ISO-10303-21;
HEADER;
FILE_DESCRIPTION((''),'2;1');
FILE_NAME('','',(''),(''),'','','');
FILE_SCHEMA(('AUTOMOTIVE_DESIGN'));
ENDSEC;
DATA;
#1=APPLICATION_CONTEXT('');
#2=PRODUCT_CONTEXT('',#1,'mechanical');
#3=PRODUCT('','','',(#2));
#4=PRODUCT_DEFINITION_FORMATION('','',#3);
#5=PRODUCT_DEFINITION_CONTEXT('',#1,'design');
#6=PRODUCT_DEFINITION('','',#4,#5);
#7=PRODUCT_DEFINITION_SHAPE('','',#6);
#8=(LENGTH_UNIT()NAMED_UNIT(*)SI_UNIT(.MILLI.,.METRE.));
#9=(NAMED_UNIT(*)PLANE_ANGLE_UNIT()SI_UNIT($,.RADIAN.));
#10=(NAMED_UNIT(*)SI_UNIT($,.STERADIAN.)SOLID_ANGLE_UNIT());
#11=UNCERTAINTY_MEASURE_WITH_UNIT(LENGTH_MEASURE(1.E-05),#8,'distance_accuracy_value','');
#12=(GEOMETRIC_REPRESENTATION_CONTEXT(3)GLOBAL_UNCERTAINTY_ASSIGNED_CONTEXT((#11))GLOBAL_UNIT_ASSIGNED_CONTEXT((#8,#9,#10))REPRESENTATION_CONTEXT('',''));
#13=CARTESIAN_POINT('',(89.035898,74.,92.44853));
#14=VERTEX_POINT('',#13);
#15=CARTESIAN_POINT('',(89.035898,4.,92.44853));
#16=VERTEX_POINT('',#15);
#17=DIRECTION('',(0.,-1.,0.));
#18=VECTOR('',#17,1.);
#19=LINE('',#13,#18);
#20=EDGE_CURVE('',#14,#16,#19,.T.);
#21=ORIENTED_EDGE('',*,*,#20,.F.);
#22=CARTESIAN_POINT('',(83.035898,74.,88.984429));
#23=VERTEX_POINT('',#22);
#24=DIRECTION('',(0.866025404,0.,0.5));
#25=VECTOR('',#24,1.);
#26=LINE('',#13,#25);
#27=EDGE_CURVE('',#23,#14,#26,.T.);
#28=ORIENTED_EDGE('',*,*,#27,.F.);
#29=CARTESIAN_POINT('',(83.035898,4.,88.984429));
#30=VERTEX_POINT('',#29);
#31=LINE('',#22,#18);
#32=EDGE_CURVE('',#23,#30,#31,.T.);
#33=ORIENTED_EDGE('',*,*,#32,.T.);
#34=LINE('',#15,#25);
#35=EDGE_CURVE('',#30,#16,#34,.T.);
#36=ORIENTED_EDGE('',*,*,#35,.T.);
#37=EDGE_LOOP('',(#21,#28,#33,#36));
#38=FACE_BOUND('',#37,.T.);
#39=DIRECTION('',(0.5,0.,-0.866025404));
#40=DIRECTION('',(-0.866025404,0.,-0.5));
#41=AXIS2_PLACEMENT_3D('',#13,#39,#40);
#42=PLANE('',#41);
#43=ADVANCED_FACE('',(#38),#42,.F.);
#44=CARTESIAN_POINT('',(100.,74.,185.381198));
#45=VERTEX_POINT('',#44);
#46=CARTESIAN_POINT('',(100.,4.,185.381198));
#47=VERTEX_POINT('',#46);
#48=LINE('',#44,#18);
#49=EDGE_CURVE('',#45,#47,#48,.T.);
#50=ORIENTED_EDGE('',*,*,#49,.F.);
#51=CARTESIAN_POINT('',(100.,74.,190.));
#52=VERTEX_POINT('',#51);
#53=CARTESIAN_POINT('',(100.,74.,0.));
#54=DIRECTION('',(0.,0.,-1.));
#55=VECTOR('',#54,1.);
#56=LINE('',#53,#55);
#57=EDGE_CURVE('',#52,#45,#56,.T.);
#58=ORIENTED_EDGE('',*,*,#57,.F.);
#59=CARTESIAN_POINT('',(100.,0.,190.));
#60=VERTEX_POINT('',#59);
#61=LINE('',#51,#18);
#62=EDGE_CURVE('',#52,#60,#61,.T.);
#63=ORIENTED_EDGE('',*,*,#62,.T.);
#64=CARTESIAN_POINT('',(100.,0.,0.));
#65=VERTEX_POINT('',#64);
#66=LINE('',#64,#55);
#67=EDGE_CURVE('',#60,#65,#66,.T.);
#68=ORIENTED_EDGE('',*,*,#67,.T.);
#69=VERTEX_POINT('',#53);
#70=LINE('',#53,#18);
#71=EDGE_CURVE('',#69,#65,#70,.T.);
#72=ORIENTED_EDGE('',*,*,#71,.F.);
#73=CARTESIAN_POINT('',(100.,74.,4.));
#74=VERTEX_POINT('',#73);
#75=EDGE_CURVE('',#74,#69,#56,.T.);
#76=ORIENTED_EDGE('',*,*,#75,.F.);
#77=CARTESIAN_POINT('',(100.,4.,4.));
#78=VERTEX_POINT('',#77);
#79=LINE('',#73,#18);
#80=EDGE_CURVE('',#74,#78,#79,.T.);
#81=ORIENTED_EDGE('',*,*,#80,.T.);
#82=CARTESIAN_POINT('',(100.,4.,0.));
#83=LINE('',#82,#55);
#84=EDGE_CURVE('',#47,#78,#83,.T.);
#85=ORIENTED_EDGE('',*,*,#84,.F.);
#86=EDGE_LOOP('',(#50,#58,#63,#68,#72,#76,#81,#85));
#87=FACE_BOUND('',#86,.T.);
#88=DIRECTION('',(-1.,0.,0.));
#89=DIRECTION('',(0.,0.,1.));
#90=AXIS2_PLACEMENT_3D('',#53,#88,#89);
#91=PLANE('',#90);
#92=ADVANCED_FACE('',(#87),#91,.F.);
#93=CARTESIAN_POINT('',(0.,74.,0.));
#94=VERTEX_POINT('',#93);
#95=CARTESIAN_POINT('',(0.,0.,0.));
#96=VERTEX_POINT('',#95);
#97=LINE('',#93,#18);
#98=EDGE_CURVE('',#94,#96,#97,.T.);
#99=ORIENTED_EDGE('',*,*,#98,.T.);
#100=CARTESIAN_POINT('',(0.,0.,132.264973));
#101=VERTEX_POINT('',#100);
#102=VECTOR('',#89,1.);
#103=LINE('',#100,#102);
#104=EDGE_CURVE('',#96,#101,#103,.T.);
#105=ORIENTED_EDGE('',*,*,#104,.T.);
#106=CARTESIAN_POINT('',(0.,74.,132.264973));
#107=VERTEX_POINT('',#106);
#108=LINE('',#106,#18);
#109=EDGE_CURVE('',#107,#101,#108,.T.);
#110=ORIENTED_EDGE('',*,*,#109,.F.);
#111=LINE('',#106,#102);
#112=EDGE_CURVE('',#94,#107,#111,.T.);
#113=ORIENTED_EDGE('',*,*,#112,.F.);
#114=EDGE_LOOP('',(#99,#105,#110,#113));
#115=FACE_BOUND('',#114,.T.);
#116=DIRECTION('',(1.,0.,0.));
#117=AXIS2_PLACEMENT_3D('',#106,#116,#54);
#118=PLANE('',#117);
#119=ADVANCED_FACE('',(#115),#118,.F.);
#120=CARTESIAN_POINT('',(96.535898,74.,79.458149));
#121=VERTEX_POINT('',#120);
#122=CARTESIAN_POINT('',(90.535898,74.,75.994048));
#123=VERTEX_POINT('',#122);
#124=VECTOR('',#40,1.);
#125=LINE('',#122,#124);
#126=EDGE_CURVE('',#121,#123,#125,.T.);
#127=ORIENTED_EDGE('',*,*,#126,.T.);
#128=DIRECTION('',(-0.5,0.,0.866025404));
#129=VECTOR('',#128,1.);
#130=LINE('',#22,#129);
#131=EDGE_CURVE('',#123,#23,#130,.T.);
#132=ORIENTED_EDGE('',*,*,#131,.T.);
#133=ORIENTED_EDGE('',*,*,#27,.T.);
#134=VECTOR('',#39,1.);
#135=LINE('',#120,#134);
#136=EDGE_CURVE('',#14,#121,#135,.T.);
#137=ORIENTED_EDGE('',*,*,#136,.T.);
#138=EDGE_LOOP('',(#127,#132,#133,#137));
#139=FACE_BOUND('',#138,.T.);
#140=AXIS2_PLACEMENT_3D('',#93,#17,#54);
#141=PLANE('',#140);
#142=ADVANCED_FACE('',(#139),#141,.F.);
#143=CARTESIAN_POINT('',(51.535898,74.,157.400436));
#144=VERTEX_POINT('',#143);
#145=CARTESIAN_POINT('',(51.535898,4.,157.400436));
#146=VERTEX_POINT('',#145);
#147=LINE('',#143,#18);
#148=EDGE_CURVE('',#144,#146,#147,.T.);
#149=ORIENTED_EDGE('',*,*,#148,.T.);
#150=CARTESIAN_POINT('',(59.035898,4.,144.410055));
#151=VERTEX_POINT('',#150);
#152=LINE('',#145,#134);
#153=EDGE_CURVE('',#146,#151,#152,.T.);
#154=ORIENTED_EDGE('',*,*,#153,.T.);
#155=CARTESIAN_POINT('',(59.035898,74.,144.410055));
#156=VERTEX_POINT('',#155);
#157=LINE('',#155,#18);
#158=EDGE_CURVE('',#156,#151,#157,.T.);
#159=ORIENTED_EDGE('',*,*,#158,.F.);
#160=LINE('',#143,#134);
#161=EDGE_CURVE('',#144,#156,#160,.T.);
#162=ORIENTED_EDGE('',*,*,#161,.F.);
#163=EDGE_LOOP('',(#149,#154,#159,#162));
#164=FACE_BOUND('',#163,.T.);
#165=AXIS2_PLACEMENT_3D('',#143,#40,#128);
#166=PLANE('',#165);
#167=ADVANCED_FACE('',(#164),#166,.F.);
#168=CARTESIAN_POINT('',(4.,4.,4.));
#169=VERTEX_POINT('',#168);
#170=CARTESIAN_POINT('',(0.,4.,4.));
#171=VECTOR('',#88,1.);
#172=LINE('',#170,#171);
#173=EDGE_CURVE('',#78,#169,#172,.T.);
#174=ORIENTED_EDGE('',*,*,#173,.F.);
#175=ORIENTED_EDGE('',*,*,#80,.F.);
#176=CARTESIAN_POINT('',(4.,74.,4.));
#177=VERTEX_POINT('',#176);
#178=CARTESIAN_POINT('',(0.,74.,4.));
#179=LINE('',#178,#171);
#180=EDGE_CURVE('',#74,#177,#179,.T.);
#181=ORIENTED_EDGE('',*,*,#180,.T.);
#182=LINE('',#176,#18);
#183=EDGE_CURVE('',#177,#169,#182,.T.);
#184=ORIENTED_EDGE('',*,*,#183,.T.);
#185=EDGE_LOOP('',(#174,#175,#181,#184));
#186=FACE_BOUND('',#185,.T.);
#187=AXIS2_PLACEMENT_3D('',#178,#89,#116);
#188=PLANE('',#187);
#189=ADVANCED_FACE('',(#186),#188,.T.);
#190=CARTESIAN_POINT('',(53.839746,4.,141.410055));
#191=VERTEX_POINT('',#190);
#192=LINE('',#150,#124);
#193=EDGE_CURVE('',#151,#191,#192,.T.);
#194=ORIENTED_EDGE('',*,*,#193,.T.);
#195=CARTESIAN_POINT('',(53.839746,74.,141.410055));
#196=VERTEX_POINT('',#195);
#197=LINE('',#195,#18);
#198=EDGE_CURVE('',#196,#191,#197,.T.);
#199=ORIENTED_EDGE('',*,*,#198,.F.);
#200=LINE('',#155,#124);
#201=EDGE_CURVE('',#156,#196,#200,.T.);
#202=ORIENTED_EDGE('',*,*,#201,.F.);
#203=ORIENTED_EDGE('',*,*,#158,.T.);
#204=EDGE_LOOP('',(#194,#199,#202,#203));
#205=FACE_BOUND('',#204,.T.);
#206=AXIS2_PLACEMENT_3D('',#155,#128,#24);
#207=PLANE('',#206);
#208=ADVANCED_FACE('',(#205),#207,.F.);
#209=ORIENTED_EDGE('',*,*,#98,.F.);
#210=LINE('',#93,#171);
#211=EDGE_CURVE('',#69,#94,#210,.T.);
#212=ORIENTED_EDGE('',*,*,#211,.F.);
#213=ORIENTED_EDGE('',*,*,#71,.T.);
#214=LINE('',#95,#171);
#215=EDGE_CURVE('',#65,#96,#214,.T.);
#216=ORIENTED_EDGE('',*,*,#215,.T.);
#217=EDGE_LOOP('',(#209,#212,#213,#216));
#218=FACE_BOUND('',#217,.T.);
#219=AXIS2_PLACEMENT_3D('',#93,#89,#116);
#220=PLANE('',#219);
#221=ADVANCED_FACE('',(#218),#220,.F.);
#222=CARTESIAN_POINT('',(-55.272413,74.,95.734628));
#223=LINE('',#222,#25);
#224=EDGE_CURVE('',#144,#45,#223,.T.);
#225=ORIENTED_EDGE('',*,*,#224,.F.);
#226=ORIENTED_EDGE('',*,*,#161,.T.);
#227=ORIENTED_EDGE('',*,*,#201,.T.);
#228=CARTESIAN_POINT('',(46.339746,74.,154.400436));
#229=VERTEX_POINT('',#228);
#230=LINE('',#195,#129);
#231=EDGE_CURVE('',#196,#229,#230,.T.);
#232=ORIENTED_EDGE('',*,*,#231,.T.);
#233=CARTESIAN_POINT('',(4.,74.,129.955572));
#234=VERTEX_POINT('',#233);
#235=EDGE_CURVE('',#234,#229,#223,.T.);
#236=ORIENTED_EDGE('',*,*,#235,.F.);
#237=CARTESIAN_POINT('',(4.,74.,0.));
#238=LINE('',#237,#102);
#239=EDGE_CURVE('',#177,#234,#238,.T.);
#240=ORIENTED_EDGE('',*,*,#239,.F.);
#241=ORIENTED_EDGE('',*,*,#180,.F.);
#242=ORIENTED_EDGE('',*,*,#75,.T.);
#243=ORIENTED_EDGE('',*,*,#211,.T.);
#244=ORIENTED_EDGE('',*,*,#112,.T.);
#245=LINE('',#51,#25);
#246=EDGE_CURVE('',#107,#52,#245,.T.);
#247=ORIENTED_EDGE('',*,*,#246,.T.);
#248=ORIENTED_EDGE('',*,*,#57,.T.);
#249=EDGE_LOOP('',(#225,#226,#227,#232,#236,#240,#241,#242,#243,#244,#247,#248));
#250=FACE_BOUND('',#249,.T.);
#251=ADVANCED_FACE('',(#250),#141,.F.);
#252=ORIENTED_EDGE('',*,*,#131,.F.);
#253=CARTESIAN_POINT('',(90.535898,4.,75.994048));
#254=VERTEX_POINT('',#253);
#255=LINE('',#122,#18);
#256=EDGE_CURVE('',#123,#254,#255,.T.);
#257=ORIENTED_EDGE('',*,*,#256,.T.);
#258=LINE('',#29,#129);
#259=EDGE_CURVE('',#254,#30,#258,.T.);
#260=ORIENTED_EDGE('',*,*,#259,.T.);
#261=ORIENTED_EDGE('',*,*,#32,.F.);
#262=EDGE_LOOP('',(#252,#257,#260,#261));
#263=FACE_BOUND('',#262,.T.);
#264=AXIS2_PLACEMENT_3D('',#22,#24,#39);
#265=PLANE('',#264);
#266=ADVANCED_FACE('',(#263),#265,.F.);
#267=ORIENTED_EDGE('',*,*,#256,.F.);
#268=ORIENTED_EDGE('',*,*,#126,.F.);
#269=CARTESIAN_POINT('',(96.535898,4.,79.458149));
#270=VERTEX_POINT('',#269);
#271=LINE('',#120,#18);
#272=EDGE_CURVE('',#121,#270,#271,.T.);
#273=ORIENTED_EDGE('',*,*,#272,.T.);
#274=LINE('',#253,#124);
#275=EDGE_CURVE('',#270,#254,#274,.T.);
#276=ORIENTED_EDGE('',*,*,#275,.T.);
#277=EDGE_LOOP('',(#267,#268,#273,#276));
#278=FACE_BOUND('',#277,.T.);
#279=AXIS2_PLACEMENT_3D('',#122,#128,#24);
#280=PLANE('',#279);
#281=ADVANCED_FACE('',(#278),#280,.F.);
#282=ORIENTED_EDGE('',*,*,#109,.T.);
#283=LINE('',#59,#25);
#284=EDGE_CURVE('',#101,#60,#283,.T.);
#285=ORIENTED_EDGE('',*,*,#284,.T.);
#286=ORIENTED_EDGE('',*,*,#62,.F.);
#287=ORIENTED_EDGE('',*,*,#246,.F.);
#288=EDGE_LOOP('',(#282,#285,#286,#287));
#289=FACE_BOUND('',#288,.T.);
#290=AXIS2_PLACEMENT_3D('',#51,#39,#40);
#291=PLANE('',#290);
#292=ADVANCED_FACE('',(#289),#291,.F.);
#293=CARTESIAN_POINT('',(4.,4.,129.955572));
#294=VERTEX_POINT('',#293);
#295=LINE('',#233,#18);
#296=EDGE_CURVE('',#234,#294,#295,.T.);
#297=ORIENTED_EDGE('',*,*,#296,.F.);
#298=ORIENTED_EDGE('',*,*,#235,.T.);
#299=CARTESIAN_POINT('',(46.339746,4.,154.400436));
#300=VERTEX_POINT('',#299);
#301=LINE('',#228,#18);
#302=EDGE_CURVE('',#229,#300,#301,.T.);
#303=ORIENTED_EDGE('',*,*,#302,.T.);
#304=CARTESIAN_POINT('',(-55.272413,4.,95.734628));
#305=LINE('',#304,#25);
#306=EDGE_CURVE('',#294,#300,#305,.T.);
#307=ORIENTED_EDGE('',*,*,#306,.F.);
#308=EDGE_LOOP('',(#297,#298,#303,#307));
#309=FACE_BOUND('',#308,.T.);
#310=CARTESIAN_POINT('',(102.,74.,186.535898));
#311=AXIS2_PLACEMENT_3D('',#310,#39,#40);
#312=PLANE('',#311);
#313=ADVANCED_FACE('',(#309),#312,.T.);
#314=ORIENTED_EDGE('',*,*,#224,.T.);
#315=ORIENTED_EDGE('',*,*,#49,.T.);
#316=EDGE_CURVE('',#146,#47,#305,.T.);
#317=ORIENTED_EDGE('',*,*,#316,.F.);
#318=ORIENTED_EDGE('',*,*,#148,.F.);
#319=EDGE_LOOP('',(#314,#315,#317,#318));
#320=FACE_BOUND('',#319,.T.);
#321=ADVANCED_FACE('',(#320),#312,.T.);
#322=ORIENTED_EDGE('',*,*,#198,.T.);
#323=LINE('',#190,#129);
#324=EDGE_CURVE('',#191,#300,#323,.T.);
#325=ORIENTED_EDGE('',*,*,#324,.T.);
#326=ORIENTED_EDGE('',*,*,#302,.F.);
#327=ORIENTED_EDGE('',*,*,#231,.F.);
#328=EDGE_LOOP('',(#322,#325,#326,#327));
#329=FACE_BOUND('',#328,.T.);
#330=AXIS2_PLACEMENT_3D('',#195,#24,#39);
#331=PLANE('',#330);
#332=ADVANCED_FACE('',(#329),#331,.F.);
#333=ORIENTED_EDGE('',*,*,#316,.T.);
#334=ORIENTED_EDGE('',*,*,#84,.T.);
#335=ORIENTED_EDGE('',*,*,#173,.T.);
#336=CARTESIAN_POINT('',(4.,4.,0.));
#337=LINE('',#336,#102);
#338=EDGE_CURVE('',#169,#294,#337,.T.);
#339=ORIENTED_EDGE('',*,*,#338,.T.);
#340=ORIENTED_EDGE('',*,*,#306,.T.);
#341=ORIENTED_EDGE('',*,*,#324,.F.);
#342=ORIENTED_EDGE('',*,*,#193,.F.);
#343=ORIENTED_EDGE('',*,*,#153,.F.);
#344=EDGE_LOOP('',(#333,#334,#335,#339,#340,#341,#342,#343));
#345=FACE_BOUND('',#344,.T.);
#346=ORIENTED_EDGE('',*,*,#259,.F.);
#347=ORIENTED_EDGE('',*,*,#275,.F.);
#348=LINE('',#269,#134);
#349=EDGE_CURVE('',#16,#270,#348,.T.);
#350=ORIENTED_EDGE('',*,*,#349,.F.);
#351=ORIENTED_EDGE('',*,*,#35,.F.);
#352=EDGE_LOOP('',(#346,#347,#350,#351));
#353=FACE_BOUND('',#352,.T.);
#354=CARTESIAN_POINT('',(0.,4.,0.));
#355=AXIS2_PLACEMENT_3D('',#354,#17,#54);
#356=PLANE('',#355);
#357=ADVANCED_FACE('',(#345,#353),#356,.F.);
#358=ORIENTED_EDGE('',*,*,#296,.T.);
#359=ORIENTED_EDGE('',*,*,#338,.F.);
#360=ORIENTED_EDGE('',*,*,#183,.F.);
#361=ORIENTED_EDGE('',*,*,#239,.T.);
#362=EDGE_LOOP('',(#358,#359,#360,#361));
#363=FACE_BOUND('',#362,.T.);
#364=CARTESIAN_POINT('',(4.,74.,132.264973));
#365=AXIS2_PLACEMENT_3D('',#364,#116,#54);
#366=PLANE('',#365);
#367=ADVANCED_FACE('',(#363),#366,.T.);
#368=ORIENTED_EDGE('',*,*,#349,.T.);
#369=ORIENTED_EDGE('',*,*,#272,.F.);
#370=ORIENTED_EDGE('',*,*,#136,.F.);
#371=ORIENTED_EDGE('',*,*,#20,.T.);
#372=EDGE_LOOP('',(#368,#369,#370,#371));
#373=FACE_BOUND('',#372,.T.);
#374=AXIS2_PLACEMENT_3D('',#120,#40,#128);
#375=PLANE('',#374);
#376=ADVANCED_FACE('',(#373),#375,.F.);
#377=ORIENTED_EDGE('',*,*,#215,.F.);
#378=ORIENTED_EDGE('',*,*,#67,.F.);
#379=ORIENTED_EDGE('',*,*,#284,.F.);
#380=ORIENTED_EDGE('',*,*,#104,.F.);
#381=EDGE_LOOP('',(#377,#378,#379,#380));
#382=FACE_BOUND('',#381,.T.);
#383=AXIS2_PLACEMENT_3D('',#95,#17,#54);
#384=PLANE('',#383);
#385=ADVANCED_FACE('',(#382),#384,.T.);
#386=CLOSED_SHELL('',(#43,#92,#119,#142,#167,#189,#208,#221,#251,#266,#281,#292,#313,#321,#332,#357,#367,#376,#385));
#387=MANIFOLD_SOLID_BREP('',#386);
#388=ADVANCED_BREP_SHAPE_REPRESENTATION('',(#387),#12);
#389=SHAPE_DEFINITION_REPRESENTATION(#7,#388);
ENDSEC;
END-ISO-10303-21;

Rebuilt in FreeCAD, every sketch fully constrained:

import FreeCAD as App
import Part
import Sketcher
from FreeCAD import Vector
Q = App.Units.Quantity


def faces_at(feature, points):
    """Names of the faces that lie closest to the given points."""
    faces = feature.Shape.Faces
    near = lambda p: min(range(len(faces)), key=lambda i: faces[i].distToShape(Part.Vertex(*p))[0])
    return sorted({f"Face{near(p) + 1}" for p in points})

doc = App.newDocument("Part")
params = doc.addObject("Spreadsheet::Sheet", "Params")
for row, (alias, value) in enumerate([
    ("sketch1_width", "100 mm"),
    ("sketch1_height", "190 mm"),
    ("pad1_length", "74 mm"),
    ("thickness_wall", "4 mm"),
    ("sketch2_length", "15 mm"),
    ("sketch2_length2", "6 mm"),
    ("pad2_length", "70 mm"),
], start=1):
    params.set(f"A{row}", alias)
    params.set(f"B{row}", "=" + value)
    params.setAlias(f"B{row}", alias)

body = doc.addObject("PartDesign::Body", "Body")

sketch1 = body.newObject("Sketcher::SketchObject", "Sketch")
sketch1.AttachmentSupport = (doc.getObject("XZ_Plane"), [""])
sketch1.MapMode = "FlatFace"
sketch1.addGeometry(Part.LineSegment(Vector(100, 0, 0), Vector(0, 0, 0)), False)
sketch1.addGeometry(Part.LineSegment(Vector(0, 0, 0), Vector(0, 132, 0)), False)
sketch1.addGeometry(Part.LineSegment(Vector(0, 132, 0), Vector(100, 190, 0)), False)
sketch1.addGeometry(Part.LineSegment(Vector(100, 190, 0), Vector(100, 0, 0)), False)
sketch1.addConstraint(Sketcher.Constraint("Coincident", 0, 2, 1, 1))
sketch1.addConstraint(Sketcher.Constraint("Coincident", 1, 2, 2, 1))
sketch1.addConstraint(Sketcher.Constraint("Coincident", 2, 2, 3, 1))
sketch1.addConstraint(Sketcher.Constraint("Coincident", 3, 2, 0, 1))
sketch1.addConstraint(Sketcher.Constraint("Horizontal", 0))
sketch1.addConstraint(Sketcher.Constraint("Vertical", 1))
sketch1.addConstraint(Sketcher.Constraint("Vertical", 3))
sketch1.addConstraint(Sketcher.Constraint("Coincident", 0, 2, -1, 1))
sketch1.addConstraint(Sketcher.Constraint("DistanceX", 0, 2, 0, 1, Q("100 mm")))
sketch1.addConstraint(Sketcher.Constraint("DistanceY", 3, 2, 3, 1, Q("190 mm")))
sketch1.addConstraint(Sketcher.Constraint("Angle", 2, Q("30 deg")))
sketch1.setExpression("Constraints[8]", "Params.sketch1_width")
sketch1.setExpression("Constraints[9]", "Params.sketch1_height")
pad1 = body.newObject("PartDesign::Pad", "Pad")
pad1.Profile = sketch1
pad1.setExpression("Length", "Params.pad1_length")
pad1.Reversed = True
doc.recompute()

thickness = body.newObject("PartDesign::Thickness", "Thickness")
thickness.Base = (pad1, faces_at(pad1, [(50, 74, 95), (100, 37, 95)]))
thickness.setExpression("Value", "Params.thickness_wall")
thickness.Reversed = True
thickness.Join = "Intersection"

sketch2 = body.newObject("Sketcher::SketchObject", "Sketch001")
sketch2.AttachmentSupport = (doc.getObject("XZ_Plane"), [""])
sketch2.MapMode = "FlatFace"
sketch2.AttachmentOffset = App.Placement(Vector(0, 0, -4), App.Rotation())
sketch2.addGeometry(Part.LineSegment(Vector(89, 92, 0), Vector(97, 79, 0)), False)
sketch2.addGeometry(Part.LineSegment(Vector(97, 79, 0), Vector(91, 76, 0)), False)
sketch2.addGeometry(Part.LineSegment(Vector(91, 76, 0), Vector(83, 89, 0)), False)
sketch2.addGeometry(Part.LineSegment(Vector(83, 89, 0), Vector(89, 92, 0)), False)
sketch2.addGeometry(Part.LineSegment(Vector(52, 157, 0), Vector(59, 144, 0)), False)
sketch2.addGeometry(Part.LineSegment(Vector(59, 144, 0), Vector(54, 141, 0)), False)
sketch2.addGeometry(Part.LineSegment(Vector(54, 141, 0), Vector(46, 154, 0)), False)
sketch2.addGeometry(Part.LineSegment(Vector(46, 154, 0), Vector(52, 157, 0)), False)
sketch2.addConstraint(Sketcher.Constraint("Coincident", 0, 2, 1, 1))
sketch2.addConstraint(Sketcher.Constraint("Coincident", 1, 2, 2, 1))
sketch2.addConstraint(Sketcher.Constraint("Coincident", 2, 2, 3, 1))
sketch2.addConstraint(Sketcher.Constraint("Coincident", 3, 2, 0, 1))
sketch2.addConstraint(Sketcher.Constraint("Coincident", 4, 2, 5, 1))
sketch2.addConstraint(Sketcher.Constraint("Coincident", 5, 2, 6, 1))
sketch2.addConstraint(Sketcher.Constraint("Coincident", 6, 2, 7, 1))
sketch2.addConstraint(Sketcher.Constraint("Coincident", 7, 2, 4, 1))
sketch2.addConstraint(Sketcher.Constraint("Perpendicular", 0, 1))
sketch2.addConstraint(Sketcher.Constraint("Perpendicular", 1, 2))
sketch2.addConstraint(Sketcher.Constraint("Perpendicular", 2, 3))
sketch2.addConstraint(Sketcher.Constraint("Perpendicular", 3, 4))
sketch2.addConstraint(Sketcher.Constraint("Perpendicular", 4, 5))
sketch2.addConstraint(Sketcher.Constraint("Perpendicular", 5, 6))
sketch2.addConstraint(Sketcher.Constraint("Perpendicular", 6, 7))
sketch2.addConstraint(Sketcher.Constraint("Equal", 2, 4))
sketch2.addConstraint(Sketcher.Constraint("Angle", 0, Q("-60 deg")))
sketch2.addConstraint(Sketcher.Constraint("Distance", 0, Q("15 mm")))
sketch2.addConstraint(Sketcher.Constraint("Distance", 5, Q("6 mm")))
sketch2.addConstraint(Sketcher.Constraint("DistanceX", 1, 2, 0, 2, Q("6 mm")))
sketch2.addConstraint(Sketcher.Constraint("DistanceX", 4, 2, 3, 2, Q("30 mm")))
sketch2.addConstraint(Sketcher.Constraint("DistanceX", -1, 1, 0, 2, Q("96.535898 mm")))
sketch2.addConstraint(Sketcher.Constraint("DistanceY", -1, 1, 0, 2, Q("79.458149 mm")))
sketch2.addConstraint(Sketcher.Constraint("DistanceY", -1, 1, 4, 2, Q("144.410055 mm")))
sketch2.setExpression("Constraints[17]", "Params.sketch2_length")
sketch2.setExpression("Constraints[18]", "Params.sketch2_length2")
pad2 = body.newObject("PartDesign::Pad", "Pad001")
pad2.Profile = sketch2
pad2.setExpression("Length", "Params.pad2_length")
pad2.Reversed = True

doc.recompute()
